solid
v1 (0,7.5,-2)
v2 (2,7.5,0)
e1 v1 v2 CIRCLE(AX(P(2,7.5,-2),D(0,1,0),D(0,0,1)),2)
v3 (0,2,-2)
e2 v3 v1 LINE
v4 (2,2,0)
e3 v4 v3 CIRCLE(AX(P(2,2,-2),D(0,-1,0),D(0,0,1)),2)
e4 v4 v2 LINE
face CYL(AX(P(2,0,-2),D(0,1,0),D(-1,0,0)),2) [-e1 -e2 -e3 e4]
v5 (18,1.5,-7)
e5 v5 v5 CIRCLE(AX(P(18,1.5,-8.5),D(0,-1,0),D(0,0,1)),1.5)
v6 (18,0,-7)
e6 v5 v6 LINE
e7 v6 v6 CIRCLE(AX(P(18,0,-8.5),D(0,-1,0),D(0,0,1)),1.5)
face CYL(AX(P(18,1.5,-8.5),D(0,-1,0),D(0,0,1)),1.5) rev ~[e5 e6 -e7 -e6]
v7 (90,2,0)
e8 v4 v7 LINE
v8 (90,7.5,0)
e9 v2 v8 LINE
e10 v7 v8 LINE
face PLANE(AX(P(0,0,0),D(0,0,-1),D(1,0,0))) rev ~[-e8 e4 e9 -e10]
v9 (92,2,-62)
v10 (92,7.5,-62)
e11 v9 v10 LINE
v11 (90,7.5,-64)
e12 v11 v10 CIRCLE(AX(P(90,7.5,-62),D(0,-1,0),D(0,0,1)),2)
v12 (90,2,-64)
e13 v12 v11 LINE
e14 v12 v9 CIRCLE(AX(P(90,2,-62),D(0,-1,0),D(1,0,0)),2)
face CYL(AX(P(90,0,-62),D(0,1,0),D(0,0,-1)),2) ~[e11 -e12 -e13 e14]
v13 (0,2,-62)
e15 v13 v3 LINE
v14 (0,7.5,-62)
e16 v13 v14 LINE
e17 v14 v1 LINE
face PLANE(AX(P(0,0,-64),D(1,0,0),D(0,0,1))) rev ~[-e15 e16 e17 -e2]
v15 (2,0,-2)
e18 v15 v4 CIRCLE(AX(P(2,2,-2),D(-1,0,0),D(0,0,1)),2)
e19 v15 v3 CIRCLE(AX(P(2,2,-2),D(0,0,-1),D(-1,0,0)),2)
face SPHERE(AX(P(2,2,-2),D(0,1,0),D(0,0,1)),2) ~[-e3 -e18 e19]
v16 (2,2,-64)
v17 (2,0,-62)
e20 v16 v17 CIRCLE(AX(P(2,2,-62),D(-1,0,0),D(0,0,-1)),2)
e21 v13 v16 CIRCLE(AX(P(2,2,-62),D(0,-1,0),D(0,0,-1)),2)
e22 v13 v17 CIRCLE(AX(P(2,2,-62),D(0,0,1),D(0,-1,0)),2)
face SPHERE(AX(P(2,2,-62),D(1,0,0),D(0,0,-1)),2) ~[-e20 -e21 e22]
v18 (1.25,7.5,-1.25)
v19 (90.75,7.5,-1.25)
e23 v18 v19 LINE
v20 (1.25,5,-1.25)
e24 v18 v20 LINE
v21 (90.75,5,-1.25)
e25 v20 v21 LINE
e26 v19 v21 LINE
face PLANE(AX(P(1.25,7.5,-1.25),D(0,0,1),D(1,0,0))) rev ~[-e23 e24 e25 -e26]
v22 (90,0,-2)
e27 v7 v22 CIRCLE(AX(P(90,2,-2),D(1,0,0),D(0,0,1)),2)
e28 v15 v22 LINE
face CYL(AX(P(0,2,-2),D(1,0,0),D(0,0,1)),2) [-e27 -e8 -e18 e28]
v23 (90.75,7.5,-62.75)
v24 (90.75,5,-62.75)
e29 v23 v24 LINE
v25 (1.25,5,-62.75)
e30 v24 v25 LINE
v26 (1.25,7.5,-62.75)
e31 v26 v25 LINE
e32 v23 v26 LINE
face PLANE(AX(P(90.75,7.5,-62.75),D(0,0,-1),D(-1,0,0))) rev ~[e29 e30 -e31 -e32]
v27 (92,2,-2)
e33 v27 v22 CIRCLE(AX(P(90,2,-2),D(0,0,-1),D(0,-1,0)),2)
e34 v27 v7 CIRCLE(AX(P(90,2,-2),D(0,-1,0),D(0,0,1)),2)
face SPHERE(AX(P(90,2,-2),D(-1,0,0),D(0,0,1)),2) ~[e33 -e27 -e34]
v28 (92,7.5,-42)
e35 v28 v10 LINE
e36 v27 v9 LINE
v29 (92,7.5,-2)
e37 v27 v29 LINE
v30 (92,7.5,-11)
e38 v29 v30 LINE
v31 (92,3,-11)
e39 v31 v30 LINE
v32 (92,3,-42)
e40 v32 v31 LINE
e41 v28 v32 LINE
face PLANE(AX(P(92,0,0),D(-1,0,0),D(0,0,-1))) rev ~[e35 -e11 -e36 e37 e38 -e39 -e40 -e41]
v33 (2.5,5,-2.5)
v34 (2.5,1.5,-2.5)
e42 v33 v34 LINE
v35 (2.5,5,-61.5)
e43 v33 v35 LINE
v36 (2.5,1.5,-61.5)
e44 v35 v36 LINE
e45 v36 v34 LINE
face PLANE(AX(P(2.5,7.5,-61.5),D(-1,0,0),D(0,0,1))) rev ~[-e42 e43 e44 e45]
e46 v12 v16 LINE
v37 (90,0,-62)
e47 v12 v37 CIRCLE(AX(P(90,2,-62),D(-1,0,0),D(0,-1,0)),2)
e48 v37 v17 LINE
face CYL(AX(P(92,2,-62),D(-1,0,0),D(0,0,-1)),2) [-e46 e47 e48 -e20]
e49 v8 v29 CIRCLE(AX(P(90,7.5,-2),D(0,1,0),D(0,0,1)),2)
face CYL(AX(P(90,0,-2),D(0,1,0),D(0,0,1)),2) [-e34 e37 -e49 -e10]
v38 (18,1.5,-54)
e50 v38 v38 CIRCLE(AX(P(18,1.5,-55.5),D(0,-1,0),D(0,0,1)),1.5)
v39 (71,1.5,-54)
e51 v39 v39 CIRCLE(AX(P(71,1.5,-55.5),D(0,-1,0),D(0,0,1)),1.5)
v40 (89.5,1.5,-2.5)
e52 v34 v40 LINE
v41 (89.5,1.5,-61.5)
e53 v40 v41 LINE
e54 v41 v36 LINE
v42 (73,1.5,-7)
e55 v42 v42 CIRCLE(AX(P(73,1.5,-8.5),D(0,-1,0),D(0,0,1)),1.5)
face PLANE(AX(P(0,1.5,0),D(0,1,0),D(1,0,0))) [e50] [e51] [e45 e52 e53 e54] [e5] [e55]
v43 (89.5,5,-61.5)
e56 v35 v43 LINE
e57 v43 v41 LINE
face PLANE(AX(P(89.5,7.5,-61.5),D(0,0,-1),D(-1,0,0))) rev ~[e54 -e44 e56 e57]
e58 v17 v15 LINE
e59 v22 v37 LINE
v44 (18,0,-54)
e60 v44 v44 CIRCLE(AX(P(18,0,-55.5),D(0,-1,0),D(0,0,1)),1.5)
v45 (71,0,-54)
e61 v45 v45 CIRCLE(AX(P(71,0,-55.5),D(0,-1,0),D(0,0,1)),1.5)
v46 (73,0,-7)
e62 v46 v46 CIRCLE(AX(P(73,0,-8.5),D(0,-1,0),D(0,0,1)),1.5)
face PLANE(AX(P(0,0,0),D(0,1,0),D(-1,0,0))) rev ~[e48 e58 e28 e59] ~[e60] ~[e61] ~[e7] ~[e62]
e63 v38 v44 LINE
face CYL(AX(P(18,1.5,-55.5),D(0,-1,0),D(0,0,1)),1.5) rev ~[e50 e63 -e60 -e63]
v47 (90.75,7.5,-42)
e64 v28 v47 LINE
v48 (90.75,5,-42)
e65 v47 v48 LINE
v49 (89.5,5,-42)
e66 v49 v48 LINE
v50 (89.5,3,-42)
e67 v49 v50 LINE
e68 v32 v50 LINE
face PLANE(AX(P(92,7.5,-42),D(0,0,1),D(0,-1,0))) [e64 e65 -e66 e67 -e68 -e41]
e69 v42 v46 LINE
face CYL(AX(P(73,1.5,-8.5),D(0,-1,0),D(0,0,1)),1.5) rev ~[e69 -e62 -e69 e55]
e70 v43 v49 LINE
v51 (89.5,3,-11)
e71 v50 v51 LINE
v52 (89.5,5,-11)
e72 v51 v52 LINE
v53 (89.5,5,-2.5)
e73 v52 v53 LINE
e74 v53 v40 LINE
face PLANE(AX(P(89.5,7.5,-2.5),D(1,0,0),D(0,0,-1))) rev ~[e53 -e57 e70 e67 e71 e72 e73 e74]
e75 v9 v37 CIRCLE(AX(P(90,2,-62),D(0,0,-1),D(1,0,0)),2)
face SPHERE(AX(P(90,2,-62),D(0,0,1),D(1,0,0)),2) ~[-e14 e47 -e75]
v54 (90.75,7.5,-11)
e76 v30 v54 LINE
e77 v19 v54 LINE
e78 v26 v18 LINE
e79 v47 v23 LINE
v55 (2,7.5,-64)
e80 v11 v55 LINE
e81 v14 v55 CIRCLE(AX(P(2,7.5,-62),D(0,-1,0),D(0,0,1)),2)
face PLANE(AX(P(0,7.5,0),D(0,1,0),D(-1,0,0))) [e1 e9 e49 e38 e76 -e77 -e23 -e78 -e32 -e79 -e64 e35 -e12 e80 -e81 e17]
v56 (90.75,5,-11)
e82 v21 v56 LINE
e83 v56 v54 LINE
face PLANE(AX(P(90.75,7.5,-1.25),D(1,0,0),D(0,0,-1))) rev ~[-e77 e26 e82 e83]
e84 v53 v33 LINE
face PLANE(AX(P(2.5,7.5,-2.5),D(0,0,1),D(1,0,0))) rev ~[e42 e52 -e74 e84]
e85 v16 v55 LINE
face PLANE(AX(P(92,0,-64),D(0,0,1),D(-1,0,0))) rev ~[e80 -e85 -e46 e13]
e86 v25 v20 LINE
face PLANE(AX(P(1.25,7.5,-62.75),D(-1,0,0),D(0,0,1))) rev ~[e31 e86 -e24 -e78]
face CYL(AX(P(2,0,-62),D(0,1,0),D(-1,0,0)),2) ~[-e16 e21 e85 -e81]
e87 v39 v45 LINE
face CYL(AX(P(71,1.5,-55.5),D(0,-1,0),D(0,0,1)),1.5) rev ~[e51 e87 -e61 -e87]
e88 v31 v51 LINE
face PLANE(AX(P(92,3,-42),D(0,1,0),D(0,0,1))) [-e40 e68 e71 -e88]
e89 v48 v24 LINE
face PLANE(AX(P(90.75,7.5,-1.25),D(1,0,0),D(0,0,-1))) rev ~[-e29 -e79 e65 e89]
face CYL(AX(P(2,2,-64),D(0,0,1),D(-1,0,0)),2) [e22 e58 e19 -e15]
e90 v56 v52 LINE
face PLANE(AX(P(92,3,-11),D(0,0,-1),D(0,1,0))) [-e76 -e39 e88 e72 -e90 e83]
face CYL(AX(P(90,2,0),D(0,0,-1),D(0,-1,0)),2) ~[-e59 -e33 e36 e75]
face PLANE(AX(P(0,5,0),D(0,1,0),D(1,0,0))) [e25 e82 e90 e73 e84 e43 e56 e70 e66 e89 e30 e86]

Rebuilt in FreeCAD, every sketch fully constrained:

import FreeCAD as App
import Part
import Sketcher
Q = App.Units.Quantity


def edges_at(feature, points):
    """Names of the edges that pass closest to the given points."""
    edges = feature.Shape.Edges
    near = lambda p: min(range(len(edges)), key=lambda i: edges[i].distToShape(Part.Vertex(*p))[0])
    return sorted({f"Edge{near(p) + 1}" for p in points})

doc = App.newDocument("Part")
params = doc.addObject("Spreadsheet::Sheet", "Params")
for row, (alias, value) in enumerate([
    ("sketch1_width", "92 mm"),
    ("sketch1_height", "64 mm"),
    ("pad1_length", "7.5 mm"),
    ("sketch2_width", "87 mm"),
    ("sketch2_height", "59 mm"),
    ("pocket1_length", "6 mm"),
    ("fillet_radius", "2 mm"),
    ("sketch3_width", "89.5 mm"),
    ("sketch3_height", "61.5 mm"),
    ("pocket2_length", "2.5 mm"),
    ("sketch4_diameter", "3 mm"),
    ("hole_diameter", "3 mm"),
    ("sketch5_width", "4.5 mm"),
    ("sketch5_height", "31 mm"),
    ("pocket3_length", "2.5 mm"),
], start=1):
    params.set(f"A{row}", alias)
    params.set(f"B{row}", "=" + value)
    params.setAlias(f"B{row}", alias)

body = doc.addObject("PartDesign::Body", "Body")

sketch1 = body.newObject("Sketcher::SketchObject", "Sketch")
sketch1.AttachmentSupport = (doc.getObject("XZ_Plane"), [""])
sketch1.MapMode = "FlatFace"
sketch1.addGeometry([
    Part.LineSegment(App.Vector(0, -64, 0), App.Vector(0, 0, 0)),
    Part.LineSegment(App.Vector(0, 0, 0), App.Vector(92, 0, 0)),
    Part.LineSegment(App.Vector(92, 0, 0), App.Vector(92, -64, 0)),
    Part.LineSegment(App.Vector(92, -64, 0), App.Vector(0, -64, 0)),
], False)
sketch1.addConstraint([
    Sketcher.Constraint("Coincident", 0, 2, 1, 1),
    Sketcher.Constraint("Coincident", 1, 2, 2, 1),
    Sketcher.Constraint("Coincident", 2, 2, 3, 1),
    Sketcher.Constraint("Coincident", 3, 2, 0, 1),
    Sketcher.Constraint("Vertical", 0),
    Sketcher.Constraint("Horizontal", 1),
    Sketcher.Constraint("Vertical", 2),
    Sketcher.Constraint("Horizontal", 3),
    Sketcher.Constraint("Coincident", 0, 2, -1, 1),
    Sketcher.Constraint("DistanceX", 1, 1, 1, 2, Q("92 mm")),
    Sketcher.Constraint("DistanceY", 0, 1, 0, 2, Q("64 mm")),
])
sketch1.setExpression("Constraints[9]", "Params.sketch1_width")
sketch1.setExpression("Constraints[10]", "Params.sketch1_height")
pad1 = body.newObject("PartDesign::Pad", "Pad")
pad1.Profile = sketch1
pad1.setExpression("Length", "Params.pad1_length")
pad1.Reversed = True

sketch2 = body.newObject("Sketcher::SketchObject", "Sketch001")
sketch2.AttachmentSupport = (doc.getObject("XZ_Plane"), [""])
sketch2.MapMode = "FlatFace"
sketch2.AttachmentOffset = App.Placement(App.Vector(0, 0, -7.5), App.Rotation())
sketch2.addGeometry([
    Part.LineSegment(App.Vector(2, -62, 0), App.Vector(2, -2, 0)),
    Part.LineSegment(App.Vector(2, -2, 0), App.Vector(90, -2, 0)),
    Part.LineSegment(App.Vector(90, -2, 0), App.Vector(90, -62, 0)),
    Part.LineSegment(App.Vector(90, -62, 0), App.Vector(2, -62, 0)),
], False)
sketch2.addConstraint([
    Sketcher.Constraint("Coincident", 0, 2, 1, 1),
    Sketcher.Constraint("Coincident", 1, 2, 2, 1),
    Sketcher.Constraint("Coincident", 2, 2, 3, 1),
    Sketcher.Constraint("Coincident", 3, 2, 0, 1),
    Sketcher.Constraint("Vertical", 0),
    Sketcher.Constraint("Horizontal", 1),
    Sketcher.Constraint("Vertical", 2),
    Sketcher.Constraint("Horizontal", 3),
    Sketcher.Constraint("DistanceX", -1, 1, 0, 2, Q("2.5 mm")),
    Sketcher.Constraint("DistanceY", 0, 2, -1, 1, Q("2.5 mm")),
    Sketcher.Constraint("DistanceX", 1, 1, 1, 2, Q("87 mm")),
    Sketcher.Constraint("DistanceY", 0, 1, 0, 2, Q("59 mm")),
])
sketch2.setExpression("Constraints[10]", "Params.sketch2_width")
sketch2.setExpression("Constraints[11]", "Params.sketch2_height")
pocket1 = body.newObject("PartDesign::Pocket", "Pocket")
pocket1.Profile = sketch2
pocket1.setExpression("Length", "Params.pocket1_length")
pocket1.Reversed = True
doc.recompute()

fillet = body.newObject("PartDesign::Fillet", "Fillet")
fillet.Base = (pocket1, edges_at(pocket1, [
    (0, 3.75, 0),
    (46, 0, 0),
    (92, 3.75, 0),
    (92, 0, -32),
    (92, 3.75, -64),
    (46, 0, -64),
    (0, 3.75, -64),
    (0, 0, -32),
]))
fillet.setExpression("Radius", "Params.fillet_radius")

sketch3 = body.newObject("Sketcher::SketchObject", "Sketch002")
sketch3.AttachmentSupport = (doc.getObject("XZ_Plane"), [""])
sketch3.MapMode = "FlatFace"
sketch3.AttachmentOffset = App.Placement(App.Vector(0, 0, -7.5), App.Rotation())
sketch3.addGeometry([
    Part.LineSegment(App.Vector(1, -63, 0), App.Vector(1, -1, 0)),
    Part.LineSegment(App.Vector(1, -1, 0), App.Vector(91, -1, 0)),
    Part.LineSegment(App.Vector(91, -1, 0), App.Vector(91, -63, 0)),
    Part.LineSegment(App.Vector(91, -63, 0), App.Vector(1, -63, 0)),
], False)
sketch3.addConstraint([
    Sketcher.Constraint("Coincident", 0, 2, 1, 1),
    Sketcher.Constraint("Coincident", 1, 2, 2, 1),
    Sketcher.Constraint("Coincident", 2, 2, 3, 1),
    Sketcher.Constraint("Coincident", 3, 2, 0, 1),
    Sketcher.Constraint("Vertical", 0),
    Sketcher.Constraint("Horizontal", 1),
    Sketcher.Constraint("Vertical", 2),
    Sketcher.Constraint("Horizontal", 3),
    Sketcher.Constraint("DistanceX", -1, 1, 0, 2, Q("1.25 mm")),
    Sketcher.Constraint("DistanceY", 0, 2, -1, 1, Q("1.25 mm")),
    Sketcher.Constraint("DistanceX", 1, 1, 1, 2, Q("89.5 mm")),
    Sketcher.Constraint("DistanceY", 0, 1, 0, 2, Q("61.5 mm")),
])
sketch3.setExpression("Constraints[10]", "Params.sketch3_width")
sketch3.setExpression("Constraints[11]", "Params.sketch3_height")
pocket2 = body.newObject("PartDesign::Pocket", "Pocket001")
pocket2.Profile = sketch3
pocket2.setExpression("Length", "Params.pocket2_length")
pocket2.Reversed = True

sketch4 = body.newObject("Sketcher::SketchObject", "Sketch003")
sketch4.AttachmentSupport = (doc.getObject("XZ_Plane"), [""])
sketch4.MapMode = "FlatFace"
sketch4.AttachmentOffset = App.Placement(App.Vector(0, 0, -1.5), App.Rotation())
sketch4.addGeometry([
    Part.Circle(App.Vector(18, -55.5, 0), App.Vector(0, 0, 1), 1.5),
    Part.Circle(App.Vector(18, -8.5, 0), App.Vector(0, 0, 1), 1.5),
    Part.Circle(App.Vector(73, -8.5, 0), App.Vector(0, 0, 1), 1.5),
    Part.Circle(App.Vector(71, -55.5, 0), App.Vector(0, 0, 1), 1.5),
], False)
sketch4.addConstraint([
    Sketcher.Constraint("Equal", 0, 1),
    Sketcher.Constraint("Equal", 1, 2),
    Sketcher.Constraint("Equal", 2, 3),
    Sketcher.Constraint("Horizontal", 1, 3, 2, 3),
    Sketcher.Constraint("Horizontal", 0, 3, 3, 3),
    Sketcher.Constraint("Vertical", 0, 3, 1, 3),
    Sketcher.Constraint("Diameter", 0, Q("3 mm")),
    Sketcher.Constraint("DistanceX", -1, 1, 0, 3, Q("18 mm")),
    Sketcher.Constraint("DistanceX", -1, 1, 2, 3, Q("73 mm")),
    Sketcher.Constraint("DistanceX", -1, 1, 3, 3, Q("71 mm")),
    Sketcher.Constraint("DistanceY", 0, 3, 1, 3, Q("47 mm")),
    Sketcher.Constraint("DistanceY", 0, 3, -1, 1, Q("55.5 mm")),
])
sketch4.setExpression("Constraints[6]", "Params.sketch4_diameter")
doc.recompute()
hole = body.newObject("PartDesign::Hole", "Hole")
hole.Profile = sketch4
hole.ThreadType = "None"
hole.setExpression("Diameter", "Params.hole_diameter")
hole.DepthType = "ThroughAll"
hole.Reversed = True

sketch5 = body.newObject("Sketcher::SketchObject", "Sketch004")
sketch5.AttachmentSupport = (doc.getObject("YZ_Plane"), [""])
sketch5.MapMode = "FlatFace"
sketch5.AttachmentOffset = App.Placement(App.Vector(0, 0, 92), App.Rotation())
sketch5.addGeometry([
    Part.LineSegment(App.Vector(7.5, -42, 0), App.Vector(7.5, -11, 0)),
    Part.LineSegment(App.Vector(7.5, -11, 0), App.Vector(3, -11, 0)),
    Part.LineSegment(App.Vector(3, -11, 0), App.Vector(3, -42, 0)),
    Part.LineSegment(App.Vector(3, -42, 0), App.Vector(7.5, -42, 0)),
], False)
sketch5.addConstraint([
    Sketcher.Constraint("Coincident", 0, 2, 1, 1),
    Sketcher.Constraint("Coincident", 1, 2, 2, 1),
    Sketcher.Constraint("Coincident", 2, 2, 3, 1),
    Sketcher.Constraint("Coincident", 3, 2, 0, 1),
    Sketcher.Constraint("Vertical", 0),
    Sketcher.Constraint("Horizontal", 1),
    Sketcher.Constraint("Vertical", 2),
    Sketcher.Constraint("Horizontal", 3),
    Sketcher.Constraint("DistanceX", 1, 2, 1, 1, Q("4.5 mm")),
    Sketcher.Constraint("DistanceY", 0, 1, 0, 2, Q("31 mm")),
    Sketcher.Constraint("DistanceY", 0, 2, -1, 1, Q("11 mm")),
    Sketcher.Constraint("DistanceX", -1, 1, 1, 2, Q("3 mm")),
])
sketch5.setExpression("Constraints[8]", "Params.sketch5_width")
sketch5.setExpression("Constraints[9]", "Params.sketch5_height")
pocket3 = body.newObject("PartDesign::Pocket", "Pocket002")
pocket3.Profile = sketch5
pocket3.setExpression("Length", "Params.pocket3_length")

doc.recompute()
